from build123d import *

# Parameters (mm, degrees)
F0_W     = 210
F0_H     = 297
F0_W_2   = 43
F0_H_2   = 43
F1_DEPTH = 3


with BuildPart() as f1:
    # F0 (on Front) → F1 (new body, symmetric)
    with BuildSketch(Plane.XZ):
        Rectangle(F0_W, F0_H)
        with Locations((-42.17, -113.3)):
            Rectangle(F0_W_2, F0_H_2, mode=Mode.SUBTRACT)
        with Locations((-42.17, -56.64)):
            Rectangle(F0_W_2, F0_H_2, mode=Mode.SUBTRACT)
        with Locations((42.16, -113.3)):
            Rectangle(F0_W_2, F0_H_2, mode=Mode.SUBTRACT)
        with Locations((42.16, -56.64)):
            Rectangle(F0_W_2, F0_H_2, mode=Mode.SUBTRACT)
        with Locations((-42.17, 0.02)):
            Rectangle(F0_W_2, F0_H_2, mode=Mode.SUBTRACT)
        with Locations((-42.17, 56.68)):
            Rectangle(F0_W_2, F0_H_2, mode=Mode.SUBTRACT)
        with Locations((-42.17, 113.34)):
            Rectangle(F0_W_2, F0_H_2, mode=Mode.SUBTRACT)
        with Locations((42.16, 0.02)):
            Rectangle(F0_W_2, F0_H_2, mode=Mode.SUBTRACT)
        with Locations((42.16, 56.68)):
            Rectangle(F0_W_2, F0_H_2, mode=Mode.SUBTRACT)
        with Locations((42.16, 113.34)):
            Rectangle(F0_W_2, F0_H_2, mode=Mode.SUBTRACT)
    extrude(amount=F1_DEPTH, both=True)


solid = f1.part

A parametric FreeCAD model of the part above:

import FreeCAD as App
import Part
import Sketcher
from FreeCAD import Vector

doc = App.newDocument("Part")
params = doc.addObject("Spreadsheet::Sheet", "Params")
for row, (alias, value) in enumerate([
    ("sketch1_width", "210 mm"),
    ("sketch1_width2", "43 mm"),
    ("sketch1_height", "297 mm"),
    ("pad1_length", "6 mm"),
], start=1):
    params.set(f"A{row}", alias)
    params.set(f"B{row}", "=" + value)
    params.setAlias(f"B{row}", alias)

body = doc.addObject("PartDesign::Body", "Body")

sketch1 = doc.addObject("Sketcher::SketchObject", "Sketch")
body.addObject(sketch1)
sketch1.AttachmentSupport = (doc.XZ_Plane, [""])
sketch1.MapMode = "FlatFace"
sketch1.addGeometry([
    Part.LineSegment(Vector(-105, 148.5, 0), Vector(-105, -148.5, 0)),
    Part.LineSegment(Vector(-105, -148.5, 0), Vector(105, -148.5, 0)),
    Part.LineSegment(Vector(105, -148.5, 0), Vector(105, 148.5, 0)),
    Part.LineSegment(Vector(105, 148.5, 0), Vector(-105, 148.5, 0)),
    Part.LineSegment(Vector(-20.67, -134.8, 0), Vector(-63.67, -134.8, 0)),
    Part.LineSegment(Vector(-63.67, -134.8, 0), Vector(-63.67, -91.8, 0)),
    Part.LineSegment(Vector(-63.67, -91.8, 0), Vector(-20.67, -91.8, 0)),
    Part.LineSegment(Vector(-20.67, -91.8, 0), Vector(-20.67, -134.8, 0)),
    Part.LineSegment(Vector(-20.67, -78.14, 0), Vector(-63.67, -78.14, 0)),
    Part.LineSegment(Vector(-63.67, -78.14, 0), Vector(-63.67, -35.14, 0)),
    Part.LineSegment(Vector(-63.67, -35.14, 0), Vector(-20.67, -35.14, 0)),
    Part.LineSegment(Vector(-20.67, -35.14, 0), Vector(-20.67, -78.14, 0)),
    Part.LineSegment(Vector(63.66, -134.8, 0), Vector(20.66, -134.8, 0)),
    Part.LineSegment(Vector(20.66, -134.8, 0), Vector(20.66, -91.8, 0)),
    Part.LineSegment(Vector(20.66, -91.8, 0), Vector(63.66, -91.8, 0)),
    Part.LineSegment(Vector(63.66, -91.8, 0), Vector(63.66, -134.8, 0)),
    Part.LineSegment(Vector(63.66, -78.14, 0), Vector(20.66, -78.14, 0)),
    Part.LineSegment(Vector(20.66, -78.14, 0), Vector(20.66, -35.14, 0)),
    Part.LineSegment(Vector(20.66, -35.14, 0), Vector(63.66, -35.14, 0)),
    Part.LineSegment(Vector(63.66, -35.14, 0), Vector(63.66, -78.14, 0)),
    Part.LineSegment(Vector(-20.67, -21.48, 0), Vector(-63.67, -21.48, 0)),
    Part.LineSegment(Vector(-63.67, -21.48, 0), Vector(-63.67, 21.52, 0)),
    Part.LineSegment(Vector(-63.67, 21.52, 0), Vector(-20.67, 21.52, 0)),
    Part.LineSegment(Vector(-20.67, 21.52, 0), Vector(-20.67, -21.48, 0)),
    Part.LineSegment(Vector(-20.67, 35.18, 0), Vector(-63.67, 35.18, 0)),
    Part.LineSegment(Vector(-63.67, 35.18, 0), Vector(-63.67, 78.18, 0)),
    Part.LineSegment(Vector(-63.67, 78.18, 0), Vector(-20.67, 78.18, 0)),
    Part.LineSegment(Vector(-20.67, 78.18, 0), Vector(-20.67, 35.18, 0)),
    Part.LineSegment(Vector(-20.67, 91.84, 0), Vector(-63.67, 91.84, 0)),
    Part.LineSegment(Vector(-63.67, 91.84, 0), Vector(-63.67, 134.84, 0)),
    Part.LineSegment(Vector(-63.67, 134.84, 0), Vector(-20.67, 134.84, 0)),
    Part.LineSegment(Vector(-20.67, 134.84, 0), Vector(-20.67, 91.84, 0)),
    Part.LineSegment(Vector(63.66, -21.48, 0), Vector(20.66, -21.48, 0)),
    Part.LineSegment(Vector(20.66, -21.48, 0), Vector(20.66, 21.52, 0)),
    Part.LineSegment(Vector(20.66, 21.52, 0), Vector(63.66, 21.52, 0)),
    Part.LineSegment(Vector(63.66, 21.52, 0), Vector(63.66, -21.48, 0)),
    Part.LineSegment(Vector(63.66, 35.18, 0), Vector(20.66, 35.18, 0)),
    Part.LineSegment(Vector(20.66, 35.18, 0), Vector(20.66, 78.18, 0)),
    Part.LineSegment(Vector(20.66, 78.18, 0), Vector(63.66, 78.18, 0)),
    Part.LineSegment(Vector(63.66, 78.18, 0), Vector(63.66, 35.18, 0)),
    Part.LineSegment(Vector(63.66, 91.84, 0), Vector(20.66, 91.84, 0)),
    Part.LineSegment(Vector(20.66, 91.84, 0), Vector(20.66, 134.84, 0)),
    Part.LineSegment(Vector(20.66, 134.84, 0), Vector(63.66, 134.84, 0)),
    Part.LineSegment(Vector(63.66, 134.84, 0), Vector(63.66, 91.84, 0)),
], False)
sketch1.addConstraint([
    Sketcher.Constraint("Coincident", 0, 2, 1, 1),
    Sketcher.Constraint("Coincident", 1, 2, 2, 1),
    Sketcher.Constraint("Coincident", 2, 2, 3, 1),
    Sketcher.Constraint("Coincident", 3, 2, 0, 1),
    Sketcher.Constraint("Coincident", 4, 2, 5, 1),
    Sketcher.Constraint("Coincident", 5, 2, 6, 1),
    Sketcher.Constraint("Coincident", 6, 2, 7, 1),
    Sketcher.Constraint("Coincident", 7, 2, 4, 1),
    Sketcher.Constraint("Coincident", 8, 2, 9, 1),
    Sketcher.Constraint("Coincident", 9, 2, 10, 1),
    Sketcher.Constraint("Coincident", 10, 2, 11, 1),
    Sketcher.Constraint("Coincident", 11, 2, 8, 1),
    Sketcher.Constraint("Coincident", 12, 2, 13, 1),
    Sketcher.Constraint("Coincident", 13, 2, 14, 1),
    Sketcher.Constraint("Coincident", 14, 2, 15, 1),
    Sketcher.Constraint("Coincident", 15, 2, 12, 1),
    Sketcher.Constraint("Coincident", 16, 2, 17, 1),
    Sketcher.Constraint("Coincident", 17, 2, 18, 1),
    Sketcher.Constraint("Coincident", 18, 2, 19, 1),
    Sketcher.Constraint("Coincident", 19, 2, 16, 1),
    Sketcher.Constraint("Coincident", 20, 2, 21, 1),
    Sketcher.Constraint("Coincident", 21, 2, 22, 1),
    Sketcher.Constraint("Coincident", 22, 2, 23, 1),
    Sketcher.Constraint("Coincident", 23, 2, 20, 1),
    Sketcher.Constraint("Coincident", 24, 2, 25, 1),
    Sketcher.Constraint("Coincident", 25, 2, 26, 1),
    Sketcher.Constraint("Coincident", 26, 2, 27, 1),
    Sketcher.Constraint("Coincident", 27, 2, 24, 1),
    Sketcher.Constraint("Coincident", 28, 2, 29, 1),
    Sketcher.Constraint("Coincident", 29, 2, 30, 1),
    Sketcher.Constraint("Coincident", 30, 2, 31, 1),
    Sketcher.Constraint("Coincident", 31, 2, 28, 1),
    Sketcher.Constraint("Coincident", 32, 2, 33, 1),
    Sketcher.Constraint("Coincident", 33, 2, 34, 1),
    Sketcher.Constraint("Coincident", 34, 2, 35, 1),
    Sketcher.Constraint("Coincident", 35, 2, 32, 1),
    Sketcher.Constraint("Coincident", 36, 2, 37, 1),
    Sketcher.Constraint("Coincident", 37, 2, 38, 1),
    Sketcher.Constraint("Coincident", 38, 2, 39, 1),
    Sketcher.Constraint("Coincident", 39, 2, 36, 1),
    Sketcher.Constraint("Coincident", 40, 2, 41, 1),
    Sketcher.Constraint("Coincident", 41, 2, 42, 1),
    Sketcher.Constraint("Coincident", 42, 2, 43, 1),
    Sketcher.Constraint("Coincident", 43, 2, 40, 1),
    Sketcher.Constraint("Vertical", 0),
    Sketcher.Constraint("Horizontal", 1),
    Sketcher.Constraint("Vertical", 2),
    Sketcher.Constraint("Horizontal", 3),
    Sketcher.Constraint("Horizontal", 4),
    Sketcher.Constraint("Vertical", 5),
    Sketcher.Constraint("Horizontal", 6),
    Sketcher.Constraint("Vertical", 7),
    Sketcher.Constraint("Horizontal", 8),
    Sketcher.Constraint("Vertical", 9),
    Sketcher.Constraint("Horizontal", 10),
    Sketcher.Constraint("Vertical", 11),
    Sketcher.Constraint("Horizontal", 12),
    Sketcher.Constraint("Vertical", 13),
    Sketcher.Constraint("Horizontal", 14),
    Sketcher.Constraint("Vertical", 15),
    Sketcher.Constraint("Horizontal", 16),
    Sketcher.Constraint("Vertical", 17),
    Sketcher.Constraint("Horizontal", 18),
    Sketcher.Constraint("Vertical", 19),
    Sketcher.Constraint("Horizontal", 20),
    Sketcher.Constraint("Vertical", 21),
    Sketcher.Constraint("Horizontal", 22),
    Sketcher.Constraint("Vertical", 23),
    Sketcher.Constraint("Horizontal", 24),
    Sketcher.Constraint("Vertical", 25),
    Sketcher.Constraint("Horizontal", 26),
    Sketcher.Constraint("Vertical", 27),
    Sketcher.Constraint("Horizontal", 28),
    Sketcher.Constraint("Vertical", 29),
    Sketcher.Constraint("Horizontal", 30),
    Sketcher.Constraint("Vertical", 31),
    Sketcher.Constraint("Horizontal", 32),
    Sketcher.Constraint("Vertical", 33),
    Sketcher.Constraint("Horizontal", 34),
    Sketcher.Constraint("Vertical", 35),
    Sketcher.Constraint("Horizontal", 36),
    Sketcher.Constraint("Vertical", 37),
    Sketcher.Constraint("Horizontal", 38),
    Sketcher.Constraint("Vertical", 39),
    Sketcher.Constraint("Horizontal", 40),
    Sketcher.Constraint("Vertical", 41),
    Sketcher.Constraint("Horizontal", 42),
    Sketcher.Constraint("Vertical", 43),
    Sketcher.Constraint("Symmetric", 0, 2, 2, 2, -1, 1),
    Sketcher.Constraint("Horizontal", 7, 2, 12, 2),
    Sketcher.Constraint("Horizontal", 6, 2, 13, 2),
    Sketcher.Constraint("Horizontal", 11, 2, 16, 2),
    Sketcher.Constraint("Horizontal", 10, 2, 17, 2),
    Sketcher.Constraint("Horizontal", 23, 2, 32, 2),
    Sketcher.Constraint("Horizontal", 22, 2, 33, 2),
    Sketcher.Constraint("Horizontal", 27, 2, 36, 2),
    Sketcher.Constraint("Horizontal", 26, 2, 37, 2),
    Sketcher.Constraint("Horizontal", 31, 2, 40, 2),
    Sketcher.Constraint("Horizontal", 30, 2, 41, 2),
    Sketcher.Constraint("Vertical", 5, 2, 8, 2),
    Sketcher.Constraint("Vertical", 7, 2, 10, 2),
    Sketcher.Constraint("Vertical", 13, 2, 16, 2),
    Sketcher.Constraint("Vertical", 15, 2, 18, 2),
    Sketcher.Constraint("Vertical", 9, 2, 20, 2),
    Sketcher.Constraint("Vertical", 11, 2, 22, 2),
    Sketcher.Constraint("Vertical", 21, 2, 24, 2),
    Sketcher.Constraint("Vertical", 23, 2, 26, 2),
    Sketcher.Constraint("Vertical", 25, 2, 28, 2),
    Sketcher.Constraint("Vertical", 27, 2, 30, 2),
    Sketcher.Constraint("Vertical", 17, 2, 32, 2),
    Sketcher.Constraint("Vertical", 19, 2, 34, 2),
    Sketcher.Constraint("Vertical", 33, 2, 36, 2),
    Sketcher.Constraint("Vertical", 35, 2, 38, 2),
    Sketcher.Constraint("Vertical", 37, 2, 40, 2),
    Sketcher.Constraint("Vertical", 39, 2, 42, 2),
    Sketcher.Constraint("Equal", 10, 12),
    Sketcher.Constraint("Equal", 42, 5),
    Sketcher.Constraint("Equal", 7, 9),
    Sketcher.Constraint("Equal", 19, 21),
    Sketcher.Constraint("Equal", 23, 25),
    Sketcher.Constraint("Equal", 27, 29),
    Sketcher.Constraint("DistanceX", 1, 1, 1, 2, 210.0),
    Sketcher.Constraint("DistanceX", 4, 2, 4, 1, 43.0),
    Sketcher.Constraint("DistanceY", 0, 2, 0, 1, 297.0),
    Sketcher.Constraint("DistanceY", 4, 2, -1, 1, 134.8),
    Sketcher.Constraint("DistanceX", 4, 2, -1, 1, 63.67),
    Sketcher.Constraint("DistanceY", 8, 2, -1, 1, 78.14),
    Sketcher.Constraint("DistanceX", -1, 1, 12, 2, 20.66),
    Sketcher.Constraint("DistanceY", 20, 2, -1, 1, 21.48),
    Sketcher.Constraint("DistanceY", -1, 1, 24, 2, 35.18),
    Sketcher.Constraint("DistanceY", -1, 1, 28, 2, 91.84),
])
sketch1.setExpression("Constraints[121]", "Params.sketch1_width")
sketch1.setExpression("Constraints[122]", "Params.sketch1_width2")
sketch1.setExpression("Constraints[123]", "Params.sketch1_height")
pad1 = doc.addObject("PartDesign::Pad", "Pad")
body.addObject(pad1)
pad1.Profile = sketch1
pad1.setExpression("Length", "Params.pad1_length")
pad1.Midplane = True

doc.recompute()
